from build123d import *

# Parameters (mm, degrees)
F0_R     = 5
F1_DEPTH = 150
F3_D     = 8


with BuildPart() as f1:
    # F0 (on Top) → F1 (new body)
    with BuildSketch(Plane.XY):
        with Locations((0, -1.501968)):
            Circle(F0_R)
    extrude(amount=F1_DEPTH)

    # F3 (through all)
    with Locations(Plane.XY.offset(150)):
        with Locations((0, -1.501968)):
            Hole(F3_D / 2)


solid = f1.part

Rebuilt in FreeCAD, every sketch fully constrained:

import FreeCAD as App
import Part
import Sketcher
from FreeCAD import Vector
Q = App.Units.Quantity

doc = App.newDocument("Part")
params = doc.addObject("Spreadsheet::Sheet", "Params")
for row, (alias, value) in enumerate([
    ("sketch1_diameter", "10 mm"),
    ("pad1_length", "150 mm"),
    ("sketch2_diameter", "8 mm"),
    ("hole_diameter", "8 mm"),
], start=1):
    params.set(f"A{row}", alias)
    params.set(f"B{row}", "=" + value)
    params.setAlias(f"B{row}", alias)

body = doc.addObject("PartDesign::Body", "Body")

sketch1 = body.newObject("Sketcher::SketchObject", "Sketch")
sketch1.AttachmentSupport = (doc.getObject("XY_Plane"), [""])
sketch1.MapMode = "FlatFace"
sketch1.addGeometry(Part.Circle(Vector(0, -2, 0), Vector(0, 0, 1), 5), False)
sketch1.addConstraint(Sketcher.Constraint("PointOnObject", 0, 3, -2))
sketch1.addConstraint(Sketcher.Constraint("Diameter", 0, Q("10 mm")))
sketch1.addConstraint(Sketcher.Constraint("DistanceY", 0, 3, -1, 1, Q("1.501968 mm")))
sketch1.setExpression("Constraints[1]", "Params.sketch1_diameter")
pad1 = body.newObject("PartDesign::Pad", "Pad")
pad1.Profile = sketch1
pad1.setExpression("Length", "Params.pad1_length")

sketch2 = body.newObject("Sketcher::SketchObject", "Sketch001")
sketch2.AttachmentSupport = (doc.getObject("XY_Plane"), [""])
sketch2.MapMode = "FlatFace"
sketch2.AttachmentOffset = App.Placement(Vector(0, 0, 150), App.Rotation())
sketch2.addGeometry(Part.Circle(Vector(0, -1.5, 0), Vector(0, 0, 1), 4), False)
sketch2.addConstraint(Sketcher.Constraint("PointOnObject", 0, 3, -2))
sketch2.addConstraint(Sketcher.Constraint("Diameter", 0, Q("8 mm")))
sketch2.addConstraint(Sketcher.Constraint("DistanceY", 0, 3, -1, 1, Q("1.501968 mm")))
sketch2.setExpression("Constraints[1]", "Params.sketch2_diameter")
doc.recompute()
hole = body.newObject("PartDesign::Hole", "Hole")
hole.Profile = sketch2
hole.ThreadType = "None"
hole.setExpression("Diameter", "Params.hole_diameter")
hole.DepthType = "ThroughAll"

doc.recompute()
